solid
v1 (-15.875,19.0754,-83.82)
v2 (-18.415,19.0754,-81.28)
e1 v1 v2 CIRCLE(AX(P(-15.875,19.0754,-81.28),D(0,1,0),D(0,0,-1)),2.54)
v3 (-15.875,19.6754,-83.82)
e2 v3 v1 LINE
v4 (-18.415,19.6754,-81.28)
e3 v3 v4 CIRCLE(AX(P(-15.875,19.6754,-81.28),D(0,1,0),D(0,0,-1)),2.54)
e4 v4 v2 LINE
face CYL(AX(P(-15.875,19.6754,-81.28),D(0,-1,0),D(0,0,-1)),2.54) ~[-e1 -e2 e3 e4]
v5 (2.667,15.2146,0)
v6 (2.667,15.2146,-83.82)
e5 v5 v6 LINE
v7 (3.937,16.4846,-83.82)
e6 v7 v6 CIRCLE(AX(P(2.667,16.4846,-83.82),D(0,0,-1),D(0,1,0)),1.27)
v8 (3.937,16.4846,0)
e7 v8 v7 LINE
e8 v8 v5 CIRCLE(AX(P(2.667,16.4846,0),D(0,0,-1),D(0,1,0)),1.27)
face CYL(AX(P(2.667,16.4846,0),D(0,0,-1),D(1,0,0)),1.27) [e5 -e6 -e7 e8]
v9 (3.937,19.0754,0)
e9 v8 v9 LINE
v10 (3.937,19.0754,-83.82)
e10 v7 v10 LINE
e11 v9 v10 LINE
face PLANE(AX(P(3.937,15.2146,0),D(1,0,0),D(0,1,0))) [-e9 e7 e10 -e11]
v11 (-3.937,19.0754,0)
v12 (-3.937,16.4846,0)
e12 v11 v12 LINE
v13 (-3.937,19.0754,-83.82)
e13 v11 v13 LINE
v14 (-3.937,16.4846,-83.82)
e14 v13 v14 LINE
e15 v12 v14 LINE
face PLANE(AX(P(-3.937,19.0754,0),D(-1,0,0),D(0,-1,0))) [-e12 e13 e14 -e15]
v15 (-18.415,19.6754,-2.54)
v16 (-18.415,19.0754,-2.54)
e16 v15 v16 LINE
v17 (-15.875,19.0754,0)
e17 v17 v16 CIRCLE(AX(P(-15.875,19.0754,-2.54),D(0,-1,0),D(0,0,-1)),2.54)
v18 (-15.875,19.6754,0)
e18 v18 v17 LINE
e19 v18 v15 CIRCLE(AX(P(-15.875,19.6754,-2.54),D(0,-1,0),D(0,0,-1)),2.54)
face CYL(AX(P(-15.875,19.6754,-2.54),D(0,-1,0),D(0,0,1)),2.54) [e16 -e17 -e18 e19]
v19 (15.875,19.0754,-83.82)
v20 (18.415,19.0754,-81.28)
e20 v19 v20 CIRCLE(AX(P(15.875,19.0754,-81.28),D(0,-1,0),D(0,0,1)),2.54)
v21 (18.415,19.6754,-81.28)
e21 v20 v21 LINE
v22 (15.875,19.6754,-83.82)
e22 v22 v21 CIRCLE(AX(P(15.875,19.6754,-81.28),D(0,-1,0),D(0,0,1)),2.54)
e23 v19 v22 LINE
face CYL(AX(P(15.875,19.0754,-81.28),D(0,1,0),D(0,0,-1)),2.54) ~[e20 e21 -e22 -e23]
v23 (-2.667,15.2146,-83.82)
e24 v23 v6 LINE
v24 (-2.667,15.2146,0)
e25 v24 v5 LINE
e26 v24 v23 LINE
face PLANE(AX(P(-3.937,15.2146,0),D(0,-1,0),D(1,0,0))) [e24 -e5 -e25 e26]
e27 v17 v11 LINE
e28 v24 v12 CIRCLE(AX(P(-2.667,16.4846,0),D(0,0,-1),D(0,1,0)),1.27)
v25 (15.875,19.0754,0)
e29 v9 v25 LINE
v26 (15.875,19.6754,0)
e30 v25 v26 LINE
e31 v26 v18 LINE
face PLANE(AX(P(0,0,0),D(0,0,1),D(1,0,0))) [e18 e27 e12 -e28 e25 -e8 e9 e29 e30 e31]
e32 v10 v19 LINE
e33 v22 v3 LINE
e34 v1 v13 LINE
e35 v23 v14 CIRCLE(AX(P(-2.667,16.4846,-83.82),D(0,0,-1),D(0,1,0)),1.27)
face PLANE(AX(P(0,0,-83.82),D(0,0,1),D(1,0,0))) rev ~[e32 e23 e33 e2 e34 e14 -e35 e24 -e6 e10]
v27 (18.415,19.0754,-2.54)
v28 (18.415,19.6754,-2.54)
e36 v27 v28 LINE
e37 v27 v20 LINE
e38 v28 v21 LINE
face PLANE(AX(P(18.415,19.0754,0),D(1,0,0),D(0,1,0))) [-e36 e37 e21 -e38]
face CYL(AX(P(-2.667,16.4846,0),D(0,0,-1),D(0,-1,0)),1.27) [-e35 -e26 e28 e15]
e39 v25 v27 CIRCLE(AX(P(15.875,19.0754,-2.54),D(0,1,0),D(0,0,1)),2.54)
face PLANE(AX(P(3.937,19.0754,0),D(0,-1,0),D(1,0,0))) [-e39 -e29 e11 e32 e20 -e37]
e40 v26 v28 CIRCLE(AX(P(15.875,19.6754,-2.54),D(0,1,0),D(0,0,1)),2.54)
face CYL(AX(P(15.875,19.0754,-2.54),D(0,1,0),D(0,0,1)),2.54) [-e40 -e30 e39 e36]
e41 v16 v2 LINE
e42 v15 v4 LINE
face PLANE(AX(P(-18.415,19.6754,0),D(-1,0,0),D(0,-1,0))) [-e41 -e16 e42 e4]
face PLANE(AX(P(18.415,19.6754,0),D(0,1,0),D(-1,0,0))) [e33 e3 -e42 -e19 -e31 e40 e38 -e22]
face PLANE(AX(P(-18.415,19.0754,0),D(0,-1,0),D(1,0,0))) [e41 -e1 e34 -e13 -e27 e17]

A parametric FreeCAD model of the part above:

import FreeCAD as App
import Part
import Sketcher
Q = App.Units.Quantity


def edges_at(feature, points):
    """Names of the edges that pass closest to the given points."""
    edges = feature.Shape.Edges
    near = lambda p: min(range(len(edges)), key=lambda i: edges[i].distToShape(Part.Vertex(*p))[0])
    return sorted({f"Edge{near(p) + 1}" for p in points})


def add_polygon(sketch, points):
    """Adds a closed chain of lines whose ends are joined by coincident constraints."""
    first, n = sketch.GeometryCount, len(points)
    for a, b in zip(points, points[1:] + points[:1]):
        sketch.addGeometry(Part.LineSegment(App.Vector(*a, 0), App.Vector(*b, 0)), False)
    for i in range(n):
        sketch.addConstraint(Sketcher.Constraint("Coincident", first + i, 2, first + (i + 1) % n, 1))

doc = App.newDocument("Part")
body = doc.addObject("PartDesign::Body", "Body")

sketch1 = doc.addObject("Sketcher::SketchObject", "Sketch")
body.addObject(sketch1)
sketch1.AttachmentSupport = (doc.XY_Plane, [""])
sketch1.MapMode = "FlatFace"
add_polygon(sketch1, [(-18.4, 19.7), (-18.4, 19.1), (-3.9, 19.1), (-3.9, 15.2), (3.9, 15.2), (3.9, 19.1), (18.4, 19.1), (18.4, 19.7)])
sketch1.addConstraint(Sketcher.Constraint("Vertical", 0))
sketch1.addConstraint(Sketcher.Constraint("Horizontal", 1))
sketch1.addConstraint(Sketcher.Constraint("Vertical", 2))
sketch1.addConstraint(Sketcher.Constraint("Horizontal", 3))
sketch1.addConstraint(Sketcher.Constraint("Vertical", 4))
sketch1.addConstraint(Sketcher.Constraint("Horizontal", 5))
sketch1.addConstraint(Sketcher.Constraint("Vertical", 6))
sketch1.addConstraint(Sketcher.Constraint("Horizontal", 7))
sketch1.addConstraint(Sketcher.Constraint("Symmetric", 1, 2, 4, 2, -2))
sketch1.addConstraint(Sketcher.Constraint("Equal", 1, 5))
sketch1.addConstraint(Sketcher.Constraint("DistanceX", 1, 1, 1, 2, Q("0.57 in")))
sketch1.addConstraint(Sketcher.Constraint("DistanceX", 3, 1, 3, 2, Q("0.31 in")))
sketch1.addConstraint(Sketcher.Constraint("DistanceY", 0, 2, 0, 1, Q("0.6 mm")))
sketch1.addConstraint(Sketcher.Constraint("DistanceY", 2, 2, 2, 1, Q("0.152 in")))
sketch1.addConstraint(Sketcher.Constraint("DistanceY", -1, 1, 0, 2, Q("0.751 in")))
pad1 = doc.addObject("PartDesign::Pad", "Pad")
body.addObject(pad1)
pad1.Profile = sketch1
pad1.Length = Q("3.3 in")
pad1.Reversed = True
doc.recompute()

fillet = doc.addObject("PartDesign::Fillet", "Fillet")
body.addObject(fillet)
fillet.Base = (pad1, edges_at(pad1, [(3.937, 15.215, -41.91), (-3.937, 15.215, -41.91)]))
fillet.Radius = Q("0.05 in")
doc.recompute()

fillet2 = doc.addObject("PartDesign::Fillet", "Fillet001")
body.addObject(fillet2)
fillet2.Base = (fillet, edges_at(fillet, [
    (18.415, 19.375, 0),
    (18.415, 19.375, -83.82),
    (-18.415, 19.375, -83.82),
    (-18.415, 19.375, 0),
]))
fillet2.Radius = Q("0.1 in")

doc.recompute()
